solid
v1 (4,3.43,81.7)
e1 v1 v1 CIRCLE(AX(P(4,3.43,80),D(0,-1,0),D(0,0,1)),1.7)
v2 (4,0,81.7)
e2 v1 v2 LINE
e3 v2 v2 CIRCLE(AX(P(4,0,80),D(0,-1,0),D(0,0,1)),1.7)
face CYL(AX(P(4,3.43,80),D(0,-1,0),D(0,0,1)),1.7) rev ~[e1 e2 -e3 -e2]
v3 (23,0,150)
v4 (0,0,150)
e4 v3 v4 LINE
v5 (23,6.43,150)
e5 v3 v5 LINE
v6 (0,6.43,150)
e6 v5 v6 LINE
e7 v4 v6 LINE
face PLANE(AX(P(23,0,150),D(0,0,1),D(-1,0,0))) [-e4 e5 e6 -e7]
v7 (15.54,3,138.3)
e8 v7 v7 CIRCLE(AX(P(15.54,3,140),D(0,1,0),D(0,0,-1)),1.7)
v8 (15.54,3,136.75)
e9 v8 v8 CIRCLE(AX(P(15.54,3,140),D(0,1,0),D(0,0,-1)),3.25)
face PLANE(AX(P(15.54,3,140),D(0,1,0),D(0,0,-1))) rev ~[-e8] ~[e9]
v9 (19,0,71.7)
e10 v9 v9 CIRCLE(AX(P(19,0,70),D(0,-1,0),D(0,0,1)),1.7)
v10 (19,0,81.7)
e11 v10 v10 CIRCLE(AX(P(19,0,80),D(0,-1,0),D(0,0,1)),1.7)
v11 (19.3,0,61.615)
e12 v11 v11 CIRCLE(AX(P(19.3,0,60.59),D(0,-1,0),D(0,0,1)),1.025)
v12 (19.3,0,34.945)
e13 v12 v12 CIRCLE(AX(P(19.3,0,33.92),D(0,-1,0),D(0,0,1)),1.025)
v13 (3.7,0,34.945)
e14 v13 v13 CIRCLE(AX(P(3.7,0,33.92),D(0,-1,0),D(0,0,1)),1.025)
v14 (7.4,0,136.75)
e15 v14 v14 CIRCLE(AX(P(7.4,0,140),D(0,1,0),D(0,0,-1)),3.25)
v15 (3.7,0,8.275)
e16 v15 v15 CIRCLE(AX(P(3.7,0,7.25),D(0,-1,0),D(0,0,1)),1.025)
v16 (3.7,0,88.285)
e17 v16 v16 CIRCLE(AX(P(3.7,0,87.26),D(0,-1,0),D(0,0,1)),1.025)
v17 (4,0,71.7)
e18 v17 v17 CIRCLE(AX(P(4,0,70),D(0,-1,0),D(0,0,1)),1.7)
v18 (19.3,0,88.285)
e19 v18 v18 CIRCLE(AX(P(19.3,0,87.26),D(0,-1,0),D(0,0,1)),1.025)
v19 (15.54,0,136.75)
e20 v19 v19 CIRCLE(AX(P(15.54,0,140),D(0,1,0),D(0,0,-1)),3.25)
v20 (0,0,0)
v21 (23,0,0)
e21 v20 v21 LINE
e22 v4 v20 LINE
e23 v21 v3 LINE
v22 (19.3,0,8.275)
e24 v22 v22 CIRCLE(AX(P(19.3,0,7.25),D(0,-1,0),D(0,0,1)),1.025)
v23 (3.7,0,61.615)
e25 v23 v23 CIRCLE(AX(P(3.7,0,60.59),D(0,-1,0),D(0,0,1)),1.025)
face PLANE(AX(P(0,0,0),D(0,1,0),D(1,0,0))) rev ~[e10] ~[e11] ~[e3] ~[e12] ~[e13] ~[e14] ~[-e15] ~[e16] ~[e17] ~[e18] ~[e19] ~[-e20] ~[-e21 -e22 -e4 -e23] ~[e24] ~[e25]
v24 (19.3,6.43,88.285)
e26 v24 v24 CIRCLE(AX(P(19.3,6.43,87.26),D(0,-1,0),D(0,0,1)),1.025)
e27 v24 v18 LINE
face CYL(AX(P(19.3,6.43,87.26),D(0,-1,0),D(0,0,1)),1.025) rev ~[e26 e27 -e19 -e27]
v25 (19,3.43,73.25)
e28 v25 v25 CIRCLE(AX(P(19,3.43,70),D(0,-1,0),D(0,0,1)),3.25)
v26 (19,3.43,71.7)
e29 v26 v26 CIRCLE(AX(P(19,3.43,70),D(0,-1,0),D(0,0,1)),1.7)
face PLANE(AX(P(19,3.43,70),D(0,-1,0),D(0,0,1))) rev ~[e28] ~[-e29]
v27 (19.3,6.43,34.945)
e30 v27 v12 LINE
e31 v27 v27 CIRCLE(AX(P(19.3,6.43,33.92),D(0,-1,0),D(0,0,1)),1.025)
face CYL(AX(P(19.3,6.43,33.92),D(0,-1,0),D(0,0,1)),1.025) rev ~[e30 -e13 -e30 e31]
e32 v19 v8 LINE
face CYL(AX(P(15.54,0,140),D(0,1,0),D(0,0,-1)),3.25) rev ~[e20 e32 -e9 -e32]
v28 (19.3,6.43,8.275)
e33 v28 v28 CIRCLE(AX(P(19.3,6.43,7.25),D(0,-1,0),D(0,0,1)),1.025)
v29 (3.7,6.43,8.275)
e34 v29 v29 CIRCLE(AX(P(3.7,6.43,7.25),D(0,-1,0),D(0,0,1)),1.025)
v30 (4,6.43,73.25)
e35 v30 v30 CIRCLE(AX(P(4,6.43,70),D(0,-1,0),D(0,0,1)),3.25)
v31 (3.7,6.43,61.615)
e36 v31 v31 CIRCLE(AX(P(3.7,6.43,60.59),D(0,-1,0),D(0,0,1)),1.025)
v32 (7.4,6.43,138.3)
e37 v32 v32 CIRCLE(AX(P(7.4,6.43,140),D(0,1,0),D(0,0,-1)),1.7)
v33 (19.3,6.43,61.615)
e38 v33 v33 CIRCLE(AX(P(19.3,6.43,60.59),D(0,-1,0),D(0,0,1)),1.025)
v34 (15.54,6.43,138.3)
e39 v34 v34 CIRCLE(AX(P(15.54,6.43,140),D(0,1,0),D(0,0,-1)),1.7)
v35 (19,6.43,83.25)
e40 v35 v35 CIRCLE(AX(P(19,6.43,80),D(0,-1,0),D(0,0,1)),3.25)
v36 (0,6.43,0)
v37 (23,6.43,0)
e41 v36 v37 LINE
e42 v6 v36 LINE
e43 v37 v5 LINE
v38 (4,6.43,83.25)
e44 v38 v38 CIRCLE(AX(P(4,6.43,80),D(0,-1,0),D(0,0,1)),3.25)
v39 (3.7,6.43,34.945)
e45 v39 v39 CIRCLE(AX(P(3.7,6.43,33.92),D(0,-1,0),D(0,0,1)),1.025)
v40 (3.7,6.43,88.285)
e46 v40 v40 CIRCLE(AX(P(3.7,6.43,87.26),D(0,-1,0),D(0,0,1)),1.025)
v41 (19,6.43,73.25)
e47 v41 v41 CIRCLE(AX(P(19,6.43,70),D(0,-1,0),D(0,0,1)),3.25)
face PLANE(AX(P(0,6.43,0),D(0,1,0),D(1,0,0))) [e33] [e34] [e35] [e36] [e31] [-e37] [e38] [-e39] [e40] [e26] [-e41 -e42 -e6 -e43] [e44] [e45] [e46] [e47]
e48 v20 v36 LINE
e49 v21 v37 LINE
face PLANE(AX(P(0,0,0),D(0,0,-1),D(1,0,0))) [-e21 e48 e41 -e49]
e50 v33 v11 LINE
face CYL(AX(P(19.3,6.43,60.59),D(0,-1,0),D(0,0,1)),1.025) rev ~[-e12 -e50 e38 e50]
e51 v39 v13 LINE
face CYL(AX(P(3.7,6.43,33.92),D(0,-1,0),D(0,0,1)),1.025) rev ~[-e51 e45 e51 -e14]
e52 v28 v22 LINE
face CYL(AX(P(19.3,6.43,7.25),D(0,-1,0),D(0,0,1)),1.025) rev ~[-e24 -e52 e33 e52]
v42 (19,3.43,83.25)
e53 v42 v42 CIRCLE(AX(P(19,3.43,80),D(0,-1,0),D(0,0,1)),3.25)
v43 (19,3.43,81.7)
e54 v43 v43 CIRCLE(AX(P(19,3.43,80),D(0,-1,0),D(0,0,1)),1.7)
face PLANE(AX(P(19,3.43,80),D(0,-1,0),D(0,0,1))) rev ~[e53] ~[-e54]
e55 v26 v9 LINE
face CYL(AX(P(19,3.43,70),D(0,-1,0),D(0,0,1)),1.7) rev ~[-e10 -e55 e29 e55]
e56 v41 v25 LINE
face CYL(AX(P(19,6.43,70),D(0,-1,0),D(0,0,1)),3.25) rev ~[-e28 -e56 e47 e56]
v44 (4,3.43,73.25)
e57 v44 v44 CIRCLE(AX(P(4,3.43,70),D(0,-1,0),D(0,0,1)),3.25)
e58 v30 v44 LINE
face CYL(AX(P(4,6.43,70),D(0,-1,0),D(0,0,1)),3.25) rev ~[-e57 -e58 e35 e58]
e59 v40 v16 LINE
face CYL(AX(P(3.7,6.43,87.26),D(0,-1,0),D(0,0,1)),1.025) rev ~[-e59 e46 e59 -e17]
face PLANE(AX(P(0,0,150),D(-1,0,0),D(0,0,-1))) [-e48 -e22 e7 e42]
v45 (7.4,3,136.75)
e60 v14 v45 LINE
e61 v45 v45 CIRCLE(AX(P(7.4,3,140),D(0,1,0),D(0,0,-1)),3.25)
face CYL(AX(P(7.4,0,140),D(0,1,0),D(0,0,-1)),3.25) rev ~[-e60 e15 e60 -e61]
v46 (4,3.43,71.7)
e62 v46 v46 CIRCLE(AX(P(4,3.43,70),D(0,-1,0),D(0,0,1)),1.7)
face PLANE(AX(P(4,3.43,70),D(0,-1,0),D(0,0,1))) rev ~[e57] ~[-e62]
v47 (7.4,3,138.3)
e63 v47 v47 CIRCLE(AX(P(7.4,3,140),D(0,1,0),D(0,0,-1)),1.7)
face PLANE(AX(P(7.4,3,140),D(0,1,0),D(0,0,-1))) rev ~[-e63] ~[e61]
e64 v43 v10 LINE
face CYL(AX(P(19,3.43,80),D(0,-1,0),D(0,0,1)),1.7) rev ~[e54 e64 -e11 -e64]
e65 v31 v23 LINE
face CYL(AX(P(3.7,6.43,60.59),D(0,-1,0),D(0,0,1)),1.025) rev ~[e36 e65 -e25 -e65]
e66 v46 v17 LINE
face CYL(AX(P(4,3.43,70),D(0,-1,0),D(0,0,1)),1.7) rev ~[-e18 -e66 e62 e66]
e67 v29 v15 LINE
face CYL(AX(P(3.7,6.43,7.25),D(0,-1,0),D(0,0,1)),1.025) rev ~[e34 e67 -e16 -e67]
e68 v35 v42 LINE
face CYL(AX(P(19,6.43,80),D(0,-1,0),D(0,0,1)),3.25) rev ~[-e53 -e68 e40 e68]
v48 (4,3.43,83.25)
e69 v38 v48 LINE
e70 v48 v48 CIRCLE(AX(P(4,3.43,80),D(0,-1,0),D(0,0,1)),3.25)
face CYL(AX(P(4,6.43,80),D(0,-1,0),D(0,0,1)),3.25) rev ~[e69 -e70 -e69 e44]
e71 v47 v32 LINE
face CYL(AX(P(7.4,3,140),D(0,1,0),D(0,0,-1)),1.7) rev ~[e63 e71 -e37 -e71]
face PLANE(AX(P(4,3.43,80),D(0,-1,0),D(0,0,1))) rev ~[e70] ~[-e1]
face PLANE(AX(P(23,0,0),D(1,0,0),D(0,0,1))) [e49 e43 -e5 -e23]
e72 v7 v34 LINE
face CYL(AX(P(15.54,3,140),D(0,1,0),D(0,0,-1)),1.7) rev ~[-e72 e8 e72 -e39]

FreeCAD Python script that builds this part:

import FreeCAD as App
import Part
import Sketcher
from FreeCAD import Vector


def add_polygon(sketch, points):
    """Adds a closed chain of lines whose ends are joined by coincident constraints."""
    first, n = sketch.GeometryCount, len(points)
    for a, b in zip(points, points[1:] + points[:1]):
        sketch.addGeometry(Part.LineSegment(App.Vector(*a, 0), App.Vector(*b, 0)), False)
    for i in range(n):
        sketch.addConstraint(Sketcher.Constraint("Coincident", first + i, 2, first + (i + 1) % n, 1))

doc = App.newDocument("Part")
body = doc.addObject("PartDesign::Body", "Body")

sketch1 = body.newObject("Sketcher::SketchObject", "Sketch")
sketch1.AttachmentSupport = (doc.getObject("XZ_Plane"), [""])
sketch1.MapMode = "FlatFace"
add_polygon(sketch1, [(23, 0), (0, 0), (0, 150), (23, 150)])
sketch1.addConstraint([
    Sketcher.Constraint("Horizontal", 0),
    Sketcher.Constraint("Vertical", 1),
    Sketcher.Constraint("Horizontal", 2),
    Sketcher.Constraint("Vertical", 3),
    Sketcher.Constraint("Coincident", 0, 2, -1, 1),
    Sketcher.Constraint("DistanceX", 0, 2, 0, 1, 23.0),
    Sketcher.Constraint("DistanceY", 1, 1, 1, 2, 150.0),
])
pad1 = body.newObject("PartDesign::Pad", "Pad")
pad1.Profile = sketch1
pad1.Length = 6.43
pad1.Reversed = True

sketch2 = body.newObject("Sketcher::SketchObject", "Sketch001")
sketch2.AttachmentSupport = (doc.getObject("XZ_Plane"), [""])
sketch2.MapMode = "FlatFace"
sketch2.AttachmentOffset = App.Placement(Vector(0, 0, -6.43), App.Rotation())
sketch2.addGeometry(Part.Circle(Vector(4, 70, 0), Vector(0, 0, 1), 1.7), False)
sketch2.addConstraint([
    Sketcher.Constraint("Diameter", 0, 3.4),
    Sketcher.Constraint("DistanceX", -1, 1, 0, 3, 4.0),
    Sketcher.Constraint("DistanceY", -1, 1, 0, 3, 70.0),
])
doc.recompute()
hole = body.newObject("PartDesign::Hole", "Hole")
hole.Profile = sketch2
hole.ThreadType = "None"
hole.Diameter = 3.4
hole.DepthType = "ThroughAll"
hole.HoleCutType = "Counterbore"
hole.HoleCutDiameter = 6.5
hole.HoleCutDepth = 3
hole.Reversed = True

sketch3 = body.newObject("Sketcher::SketchObject", "Sketch002")
sketch3.AttachmentSupport = (doc.getObject("XZ_Plane"), [""])
sketch3.MapMode = "FlatFace"
sketch3.AttachmentOffset = App.Placement(Vector(0, 0, -6.43), App.Rotation())
sketch3.addGeometry(Part.Circle(Vector(19, 70, 0), Vector(0, 0, 1), 1.7), False)
sketch3.addConstraint([
    Sketcher.Constraint("Diameter", 0, 3.4),
    Sketcher.Constraint("DistanceX", -1, 1, 0, 3, 19.0),
    Sketcher.Constraint("DistanceY", -1, 1, 0, 3, 70.0),
])
doc.recompute()
hole2 = body.newObject("PartDesign::Hole", "Hole001")
hole2.Profile = sketch3
hole2.ThreadType = "None"
hole2.Diameter = 3.4
hole2.DepthType = "ThroughAll"
hole2.HoleCutType = "Counterbore"
hole2.HoleCutDiameter = 6.5
hole2.HoleCutDepth = 3
hole2.Reversed = True

sketch4 = body.newObject("Sketcher::SketchObject", "Sketch003")
sketch4.AttachmentSupport = (doc.getObject("XZ_Plane"), [""])
sketch4.MapMode = "FlatFace"
sketch4.AttachmentOffset = App.Placement(Vector(0, 0, -6.43), App.Rotation())
sketch4.addGeometry(Part.Circle(Vector(4, 80, 0), Vector(0, 0, 1), 1.7), False)
sketch4.addConstraint([
    Sketcher.Constraint("Diameter", 0, 3.4),
    Sketcher.Constraint("DistanceX", -1, 1, 0, 3, 4.0),
    Sketcher.Constraint("DistanceY", -1, 1, 0, 3, 80.0),
])
doc.recompute()
hole3 = body.newObject("PartDesign::Hole", "Hole002")
hole3.Profile = sketch4
hole3.ThreadType = "None"
hole3.Diameter = 3.4
hole3.DepthType = "ThroughAll"
hole3.HoleCutType = "Counterbore"
hole3.HoleCutDiameter = 6.5
hole3.HoleCutDepth = 3
hole3.Reversed = True

sketch5 = body.newObject("Sketcher::SketchObject", "Sketch004")
sketch5.AttachmentSupport = (doc.getObject("XZ_Plane"), [""])
sketch5.MapMode = "FlatFace"
sketch5.AttachmentOffset = App.Placement(Vector(0, 0, -6.43), App.Rotation())
sketch5.addGeometry(Part.Circle(Vector(19, 80, 0), Vector(0, 0, 1), 1.7), False)
sketch5.addConstraint([
    Sketcher.Constraint("Diameter", 0, 3.4),
    Sketcher.Constraint("DistanceX", -1, 1, 0, 3, 19.0),
    Sketcher.Constraint("DistanceY", -1, 1, 0, 3, 80.0),
])
doc.recompute()
hole4 = body.newObject("PartDesign::Hole", "Hole003")
hole4.Profile = sketch5
hole4.ThreadType = "None"
hole4.Diameter = 3.4
hole4.DepthType = "ThroughAll"
hole4.HoleCutType = "Counterbore"
hole4.HoleCutDiameter = 6.5
hole4.HoleCutDepth = 3
hole4.Reversed = True

sketch6 = body.newObject("Sketcher::SketchObject", "Sketch005")
sketch6.AttachmentSupport = (doc.getObject("XZ_Plane"), [""])
sketch6.MapMode = "FlatFace"
sketch6.AttachmentOffset = App.Placement(Vector(0, 0, -6.43), App.Rotation())
sketch6.addGeometry(Part.Circle(Vector(3.7, 7.2, 0), Vector(0, 0, 1), 1), False)
sketch6.addConstraint([
    Sketcher.Constraint("Diameter", 0, 2.05),
    Sketcher.Constraint("DistanceX", -1, 1, 0, 3, 3.7),
    Sketcher.Constraint("DistanceY", -1, 1, 0, 3, 7.25),
])
doc.recompute()
hole5 = body.newObject("PartDesign::Hole", "Hole004")
hole5.Profile = sketch6
hole5.ThreadType = "None"
hole5.Diameter = 2.05
hole5.DepthType = "ThroughAll"
hole5.Reversed = True

sketch7 = body.newObject("Sketcher::SketchObject", "Sketch006")
sketch7.AttachmentSupport = (doc.getObject("XZ_Plane"), [""])
sketch7.MapMode = "FlatFace"
sketch7.AttachmentOffset = App.Placement(Vector(0, 0, -6.43), App.Rotation())
sketch7.addGeometry(Part.Circle(Vector(19.3, 7.2, 0), Vector(0, 0, 1), 1), False)
sketch7.addConstraint([
    Sketcher.Constraint("Diameter", 0, 2.05),
    Sketcher.Constraint("DistanceX", -1, 1, 0, 3, 19.3),
    Sketcher.Constraint("DistanceY", -1, 1, 0, 3, 7.25),
])
doc.recompute()
hole6 = body.newObject("PartDesign::Hole", "Hole005")
hole6.Profile = sketch7
hole6.ThreadType = "None"
hole6.Diameter = 2.05
hole6.DepthType = "ThroughAll"
hole6.Reversed = True

sketch8 = body.newObject("Sketcher::SketchObject", "Sketch007")
sketch8.AttachmentSupport = (doc.getObject("XZ_Plane"), [""])
sketch8.MapMode = "FlatFace"
sketch8.AttachmentOffset = App.Placement(Vector(0, 0, -6.43), App.Rotation())
sketch8.addGeometry(Part.Circle(Vector(3.7, 33.9, 0), Vector(0, 0, 1), 1), False)
sketch8.addConstraint([
    Sketcher.Constraint("Diameter", 0, 2.05),
    Sketcher.Constraint("DistanceX", -1, 1, 0, 3, 3.7),
    Sketcher.Constraint("DistanceY", -1, 1, 0, 3, 33.92),
])
doc.recompute()
hole7 = body.newObject("PartDesign::Hole", "Hole006")
hole7.Profile = sketch8
hole7.ThreadType = "None"
hole7.Diameter = 2.05
hole7.DepthType = "ThroughAll"
hole7.Reversed = True

sketch9 = body.newObject("Sketcher::SketchObject", "Sketch008")
sketch9.AttachmentSupport = (doc.getObject("XZ_Plane"), [""])
sketch9.MapMode = "FlatFace"
sketch9.AttachmentOffset = App.Placement(Vector(0, 0, -6.43), App.Rotation())
sketch9.addGeometry(Part.Circle(Vector(19.3, 33.9, 0), Vector(0, 0, 1), 1), False)
sketch9.addConstraint([
    Sketcher.Constraint("Diameter", 0, 2.05),
    Sketcher.Constraint("DistanceX", -1, 1, 0, 3, 19.3),
    Sketcher.Constraint("DistanceY", -1, 1, 0, 3, 33.92),
])
doc.recompute()
hole8 = body.newObject("PartDesign::Hole", "Hole007")
hole8.Profile = sketch9
hole8.ThreadType = "None"
hole8.Diameter = 2.05
hole8.DepthType = "ThroughAll"
hole8.Reversed = True

sketch10 = body.newObject("Sketcher::SketchObject", "Sketch009")
sketch10.AttachmentSupport = (doc.getObject("XZ_Plane"), [""])
sketch10.MapMode = "FlatFace"
sketch10.AttachmentOffset = App.Placement(Vector(0, 0, -6.43), App.Rotation())
sketch10.addGeometry(Part.Circle(Vector(3.7, 60.6, 0), Vector(0, 0, 1), 1), False)
sketch10.addConstraint([
    Sketcher.Constraint("Diameter", 0, 2.05),
    Sketcher.Constraint("DistanceX", -1, 1, 0, 3, 3.7),
    Sketcher.Constraint("DistanceY", -1, 1, 0, 3, 60.59),
])
doc.recompute()
hole9 = body.newObject("PartDesign::Hole", "Hole008")
hole9.Profile = sketch10
hole9.ThreadType = "None"
hole9.Diameter = 2.05
hole9.DepthType = "ThroughAll"
hole9.Reversed = True

sketch11 = body.newObject("Sketcher::SketchObject", "Sketch010")
sketch11.AttachmentSupport = (doc.getObject("XZ_Plane"), [""])
sketch11.MapMode = "FlatFace"
sketch11.AttachmentOffset = App.Placement(Vector(0, 0, -6.43), App.Rotation())
sketch11.addGeometry(Part.Circle(Vector(19.3, 60.6, 0), Vector(0, 0, 1), 1), False)
sketch11.addConstraint([
    Sketcher.Constraint("Diameter", 0, 2.05),
    Sketcher.Constraint("DistanceX", -1, 1, 0, 3, 19.3),
    Sketcher.Constraint("DistanceY", -1, 1, 0, 3, 60.59),
])
doc.recompute()
hole10 = body.newObject("PartDesign::Hole", "Hole009")
hole10.Profile = sketch11
hole10.ThreadType = "None"
hole10.Diameter = 2.05
hole10.DepthType = "ThroughAll"
hole10.Reversed = True

sketch12 = body.newObject("Sketcher::SketchObject", "Sketch011")
sketch12.AttachmentSupport = (doc.getObject("XZ_Plane"), [""])
sketch12.MapMode = "FlatFace"
sketch12.AttachmentOffset = App.Placement(Vector(0, 0, -6.43), App.Rotation())
sketch12.addGeometry(Part.Circle(Vector(3.7, 87.3, 0), Vector(0, 0, 1), 1), False)
sketch12.addConstraint([
    Sketcher.Constraint("Diameter", 0, 2.05),
    Sketcher.Constraint("DistanceX", -1, 1, 0, 3, 3.7),
    Sketcher.Constraint("DistanceY", -1, 1, 0, 3, 87.26),
])
doc.recompute()
hole11 = body.newObject("PartDesign::Hole", "Hole010")
hole11.Profile = sketch12
hole11.ThreadType = "None"
hole11.Diameter = 2.05
hole11.DepthType = "ThroughAll"
hole11.Reversed = True

sketch13 = body.newObject("Sketcher::SketchObject", "Sketch012")
sketch13.AttachmentSupport = (doc.getObject("XZ_Plane"), [""])
sketch13.MapMode = "FlatFace"
sketch13.AttachmentOffset = App.Placement(Vector(0, 0, -6.43), App.Rotation())
sketch13.addGeometry(Part.Circle(Vector(19.3, 87.3, 0), Vector(0, 0, 1), 1), False)
sketch13.addConstraint([
    Sketcher.Constraint("Diameter", 0, 2.05),
    Sketcher.Constraint("DistanceX", -1, 1, 0, 3, 19.3),
    Sketcher.Constraint("DistanceY", -1, 1, 0, 3, 87.26),
])
doc.recompute()
hole12 = body.newObject("PartDesign::Hole", "Hole011")
hole12.Profile = sketch13
hole12.ThreadType = "None"
hole12.Diameter = 2.05
hole12.DepthType = "ThroughAll"
hole12.Reversed = True

sketch14 = body.newObject("Sketcher::SketchObject", "Sketch013")
sketch14.AttachmentSupport = (doc.getObject("XZ_Plane"), [""])
sketch14.MapMode = "FlatFace"
sketch14.addGeometry(Part.Circle(Vector(7.4, 140, 0), Vector(0, 0, 1), 1.7), False)
sketch14.addConstraint([
    Sketcher.Constraint("Diameter", 0, 3.4),
    Sketcher.Constraint("DistanceY", -1, 1, 0, 3, 140.0),
    Sketcher.Constraint("DistanceX", -1, 1, 0, 3, 7.4),
])
doc.recompute()
hole13 = body.newObject("PartDesign::Hole", "Hole012")
hole13.Profile = sketch14
hole13.ThreadType = "None"
hole13.Diameter = 3.4
hole13.DepthType = "ThroughAll"
hole13.HoleCutType = "Counterbore"
hole13.HoleCutDiameter = 6.5
hole13.HoleCutDepth = 3

sketch15 = body.newObject("Sketcher::SketchObject", "Sketch014")
sketch15.AttachmentSupport = (doc.getObject("XZ_Plane"), [""])
sketch15.MapMode = "FlatFace"
sketch15.addGeometry(Part.Circle(Vector(15.5, 140, 0), Vector(0, 0, 1), 1.7), False)
sketch15.addConstraint([
    Sketcher.Constraint("Diameter", 0, 3.4),
    Sketcher.Constraint("DistanceY", -1, 1, 0, 3, 140.0),
    Sketcher.Constraint("DistanceX", -1, 1, 0, 3, 15.54),
])
doc.recompute()
hole14 = body.newObject("PartDesign::Hole", "Hole013")
hole14.Profile = sketch15
hole14.ThreadType = "None"
hole14.Diameter = 3.4
hole14.DepthType = "ThroughAll"
hole14.HoleCutType = "Counterbore"
hole14.HoleCutDiameter = 6.5
hole14.HoleCutDepth = 3

doc.recompute()
